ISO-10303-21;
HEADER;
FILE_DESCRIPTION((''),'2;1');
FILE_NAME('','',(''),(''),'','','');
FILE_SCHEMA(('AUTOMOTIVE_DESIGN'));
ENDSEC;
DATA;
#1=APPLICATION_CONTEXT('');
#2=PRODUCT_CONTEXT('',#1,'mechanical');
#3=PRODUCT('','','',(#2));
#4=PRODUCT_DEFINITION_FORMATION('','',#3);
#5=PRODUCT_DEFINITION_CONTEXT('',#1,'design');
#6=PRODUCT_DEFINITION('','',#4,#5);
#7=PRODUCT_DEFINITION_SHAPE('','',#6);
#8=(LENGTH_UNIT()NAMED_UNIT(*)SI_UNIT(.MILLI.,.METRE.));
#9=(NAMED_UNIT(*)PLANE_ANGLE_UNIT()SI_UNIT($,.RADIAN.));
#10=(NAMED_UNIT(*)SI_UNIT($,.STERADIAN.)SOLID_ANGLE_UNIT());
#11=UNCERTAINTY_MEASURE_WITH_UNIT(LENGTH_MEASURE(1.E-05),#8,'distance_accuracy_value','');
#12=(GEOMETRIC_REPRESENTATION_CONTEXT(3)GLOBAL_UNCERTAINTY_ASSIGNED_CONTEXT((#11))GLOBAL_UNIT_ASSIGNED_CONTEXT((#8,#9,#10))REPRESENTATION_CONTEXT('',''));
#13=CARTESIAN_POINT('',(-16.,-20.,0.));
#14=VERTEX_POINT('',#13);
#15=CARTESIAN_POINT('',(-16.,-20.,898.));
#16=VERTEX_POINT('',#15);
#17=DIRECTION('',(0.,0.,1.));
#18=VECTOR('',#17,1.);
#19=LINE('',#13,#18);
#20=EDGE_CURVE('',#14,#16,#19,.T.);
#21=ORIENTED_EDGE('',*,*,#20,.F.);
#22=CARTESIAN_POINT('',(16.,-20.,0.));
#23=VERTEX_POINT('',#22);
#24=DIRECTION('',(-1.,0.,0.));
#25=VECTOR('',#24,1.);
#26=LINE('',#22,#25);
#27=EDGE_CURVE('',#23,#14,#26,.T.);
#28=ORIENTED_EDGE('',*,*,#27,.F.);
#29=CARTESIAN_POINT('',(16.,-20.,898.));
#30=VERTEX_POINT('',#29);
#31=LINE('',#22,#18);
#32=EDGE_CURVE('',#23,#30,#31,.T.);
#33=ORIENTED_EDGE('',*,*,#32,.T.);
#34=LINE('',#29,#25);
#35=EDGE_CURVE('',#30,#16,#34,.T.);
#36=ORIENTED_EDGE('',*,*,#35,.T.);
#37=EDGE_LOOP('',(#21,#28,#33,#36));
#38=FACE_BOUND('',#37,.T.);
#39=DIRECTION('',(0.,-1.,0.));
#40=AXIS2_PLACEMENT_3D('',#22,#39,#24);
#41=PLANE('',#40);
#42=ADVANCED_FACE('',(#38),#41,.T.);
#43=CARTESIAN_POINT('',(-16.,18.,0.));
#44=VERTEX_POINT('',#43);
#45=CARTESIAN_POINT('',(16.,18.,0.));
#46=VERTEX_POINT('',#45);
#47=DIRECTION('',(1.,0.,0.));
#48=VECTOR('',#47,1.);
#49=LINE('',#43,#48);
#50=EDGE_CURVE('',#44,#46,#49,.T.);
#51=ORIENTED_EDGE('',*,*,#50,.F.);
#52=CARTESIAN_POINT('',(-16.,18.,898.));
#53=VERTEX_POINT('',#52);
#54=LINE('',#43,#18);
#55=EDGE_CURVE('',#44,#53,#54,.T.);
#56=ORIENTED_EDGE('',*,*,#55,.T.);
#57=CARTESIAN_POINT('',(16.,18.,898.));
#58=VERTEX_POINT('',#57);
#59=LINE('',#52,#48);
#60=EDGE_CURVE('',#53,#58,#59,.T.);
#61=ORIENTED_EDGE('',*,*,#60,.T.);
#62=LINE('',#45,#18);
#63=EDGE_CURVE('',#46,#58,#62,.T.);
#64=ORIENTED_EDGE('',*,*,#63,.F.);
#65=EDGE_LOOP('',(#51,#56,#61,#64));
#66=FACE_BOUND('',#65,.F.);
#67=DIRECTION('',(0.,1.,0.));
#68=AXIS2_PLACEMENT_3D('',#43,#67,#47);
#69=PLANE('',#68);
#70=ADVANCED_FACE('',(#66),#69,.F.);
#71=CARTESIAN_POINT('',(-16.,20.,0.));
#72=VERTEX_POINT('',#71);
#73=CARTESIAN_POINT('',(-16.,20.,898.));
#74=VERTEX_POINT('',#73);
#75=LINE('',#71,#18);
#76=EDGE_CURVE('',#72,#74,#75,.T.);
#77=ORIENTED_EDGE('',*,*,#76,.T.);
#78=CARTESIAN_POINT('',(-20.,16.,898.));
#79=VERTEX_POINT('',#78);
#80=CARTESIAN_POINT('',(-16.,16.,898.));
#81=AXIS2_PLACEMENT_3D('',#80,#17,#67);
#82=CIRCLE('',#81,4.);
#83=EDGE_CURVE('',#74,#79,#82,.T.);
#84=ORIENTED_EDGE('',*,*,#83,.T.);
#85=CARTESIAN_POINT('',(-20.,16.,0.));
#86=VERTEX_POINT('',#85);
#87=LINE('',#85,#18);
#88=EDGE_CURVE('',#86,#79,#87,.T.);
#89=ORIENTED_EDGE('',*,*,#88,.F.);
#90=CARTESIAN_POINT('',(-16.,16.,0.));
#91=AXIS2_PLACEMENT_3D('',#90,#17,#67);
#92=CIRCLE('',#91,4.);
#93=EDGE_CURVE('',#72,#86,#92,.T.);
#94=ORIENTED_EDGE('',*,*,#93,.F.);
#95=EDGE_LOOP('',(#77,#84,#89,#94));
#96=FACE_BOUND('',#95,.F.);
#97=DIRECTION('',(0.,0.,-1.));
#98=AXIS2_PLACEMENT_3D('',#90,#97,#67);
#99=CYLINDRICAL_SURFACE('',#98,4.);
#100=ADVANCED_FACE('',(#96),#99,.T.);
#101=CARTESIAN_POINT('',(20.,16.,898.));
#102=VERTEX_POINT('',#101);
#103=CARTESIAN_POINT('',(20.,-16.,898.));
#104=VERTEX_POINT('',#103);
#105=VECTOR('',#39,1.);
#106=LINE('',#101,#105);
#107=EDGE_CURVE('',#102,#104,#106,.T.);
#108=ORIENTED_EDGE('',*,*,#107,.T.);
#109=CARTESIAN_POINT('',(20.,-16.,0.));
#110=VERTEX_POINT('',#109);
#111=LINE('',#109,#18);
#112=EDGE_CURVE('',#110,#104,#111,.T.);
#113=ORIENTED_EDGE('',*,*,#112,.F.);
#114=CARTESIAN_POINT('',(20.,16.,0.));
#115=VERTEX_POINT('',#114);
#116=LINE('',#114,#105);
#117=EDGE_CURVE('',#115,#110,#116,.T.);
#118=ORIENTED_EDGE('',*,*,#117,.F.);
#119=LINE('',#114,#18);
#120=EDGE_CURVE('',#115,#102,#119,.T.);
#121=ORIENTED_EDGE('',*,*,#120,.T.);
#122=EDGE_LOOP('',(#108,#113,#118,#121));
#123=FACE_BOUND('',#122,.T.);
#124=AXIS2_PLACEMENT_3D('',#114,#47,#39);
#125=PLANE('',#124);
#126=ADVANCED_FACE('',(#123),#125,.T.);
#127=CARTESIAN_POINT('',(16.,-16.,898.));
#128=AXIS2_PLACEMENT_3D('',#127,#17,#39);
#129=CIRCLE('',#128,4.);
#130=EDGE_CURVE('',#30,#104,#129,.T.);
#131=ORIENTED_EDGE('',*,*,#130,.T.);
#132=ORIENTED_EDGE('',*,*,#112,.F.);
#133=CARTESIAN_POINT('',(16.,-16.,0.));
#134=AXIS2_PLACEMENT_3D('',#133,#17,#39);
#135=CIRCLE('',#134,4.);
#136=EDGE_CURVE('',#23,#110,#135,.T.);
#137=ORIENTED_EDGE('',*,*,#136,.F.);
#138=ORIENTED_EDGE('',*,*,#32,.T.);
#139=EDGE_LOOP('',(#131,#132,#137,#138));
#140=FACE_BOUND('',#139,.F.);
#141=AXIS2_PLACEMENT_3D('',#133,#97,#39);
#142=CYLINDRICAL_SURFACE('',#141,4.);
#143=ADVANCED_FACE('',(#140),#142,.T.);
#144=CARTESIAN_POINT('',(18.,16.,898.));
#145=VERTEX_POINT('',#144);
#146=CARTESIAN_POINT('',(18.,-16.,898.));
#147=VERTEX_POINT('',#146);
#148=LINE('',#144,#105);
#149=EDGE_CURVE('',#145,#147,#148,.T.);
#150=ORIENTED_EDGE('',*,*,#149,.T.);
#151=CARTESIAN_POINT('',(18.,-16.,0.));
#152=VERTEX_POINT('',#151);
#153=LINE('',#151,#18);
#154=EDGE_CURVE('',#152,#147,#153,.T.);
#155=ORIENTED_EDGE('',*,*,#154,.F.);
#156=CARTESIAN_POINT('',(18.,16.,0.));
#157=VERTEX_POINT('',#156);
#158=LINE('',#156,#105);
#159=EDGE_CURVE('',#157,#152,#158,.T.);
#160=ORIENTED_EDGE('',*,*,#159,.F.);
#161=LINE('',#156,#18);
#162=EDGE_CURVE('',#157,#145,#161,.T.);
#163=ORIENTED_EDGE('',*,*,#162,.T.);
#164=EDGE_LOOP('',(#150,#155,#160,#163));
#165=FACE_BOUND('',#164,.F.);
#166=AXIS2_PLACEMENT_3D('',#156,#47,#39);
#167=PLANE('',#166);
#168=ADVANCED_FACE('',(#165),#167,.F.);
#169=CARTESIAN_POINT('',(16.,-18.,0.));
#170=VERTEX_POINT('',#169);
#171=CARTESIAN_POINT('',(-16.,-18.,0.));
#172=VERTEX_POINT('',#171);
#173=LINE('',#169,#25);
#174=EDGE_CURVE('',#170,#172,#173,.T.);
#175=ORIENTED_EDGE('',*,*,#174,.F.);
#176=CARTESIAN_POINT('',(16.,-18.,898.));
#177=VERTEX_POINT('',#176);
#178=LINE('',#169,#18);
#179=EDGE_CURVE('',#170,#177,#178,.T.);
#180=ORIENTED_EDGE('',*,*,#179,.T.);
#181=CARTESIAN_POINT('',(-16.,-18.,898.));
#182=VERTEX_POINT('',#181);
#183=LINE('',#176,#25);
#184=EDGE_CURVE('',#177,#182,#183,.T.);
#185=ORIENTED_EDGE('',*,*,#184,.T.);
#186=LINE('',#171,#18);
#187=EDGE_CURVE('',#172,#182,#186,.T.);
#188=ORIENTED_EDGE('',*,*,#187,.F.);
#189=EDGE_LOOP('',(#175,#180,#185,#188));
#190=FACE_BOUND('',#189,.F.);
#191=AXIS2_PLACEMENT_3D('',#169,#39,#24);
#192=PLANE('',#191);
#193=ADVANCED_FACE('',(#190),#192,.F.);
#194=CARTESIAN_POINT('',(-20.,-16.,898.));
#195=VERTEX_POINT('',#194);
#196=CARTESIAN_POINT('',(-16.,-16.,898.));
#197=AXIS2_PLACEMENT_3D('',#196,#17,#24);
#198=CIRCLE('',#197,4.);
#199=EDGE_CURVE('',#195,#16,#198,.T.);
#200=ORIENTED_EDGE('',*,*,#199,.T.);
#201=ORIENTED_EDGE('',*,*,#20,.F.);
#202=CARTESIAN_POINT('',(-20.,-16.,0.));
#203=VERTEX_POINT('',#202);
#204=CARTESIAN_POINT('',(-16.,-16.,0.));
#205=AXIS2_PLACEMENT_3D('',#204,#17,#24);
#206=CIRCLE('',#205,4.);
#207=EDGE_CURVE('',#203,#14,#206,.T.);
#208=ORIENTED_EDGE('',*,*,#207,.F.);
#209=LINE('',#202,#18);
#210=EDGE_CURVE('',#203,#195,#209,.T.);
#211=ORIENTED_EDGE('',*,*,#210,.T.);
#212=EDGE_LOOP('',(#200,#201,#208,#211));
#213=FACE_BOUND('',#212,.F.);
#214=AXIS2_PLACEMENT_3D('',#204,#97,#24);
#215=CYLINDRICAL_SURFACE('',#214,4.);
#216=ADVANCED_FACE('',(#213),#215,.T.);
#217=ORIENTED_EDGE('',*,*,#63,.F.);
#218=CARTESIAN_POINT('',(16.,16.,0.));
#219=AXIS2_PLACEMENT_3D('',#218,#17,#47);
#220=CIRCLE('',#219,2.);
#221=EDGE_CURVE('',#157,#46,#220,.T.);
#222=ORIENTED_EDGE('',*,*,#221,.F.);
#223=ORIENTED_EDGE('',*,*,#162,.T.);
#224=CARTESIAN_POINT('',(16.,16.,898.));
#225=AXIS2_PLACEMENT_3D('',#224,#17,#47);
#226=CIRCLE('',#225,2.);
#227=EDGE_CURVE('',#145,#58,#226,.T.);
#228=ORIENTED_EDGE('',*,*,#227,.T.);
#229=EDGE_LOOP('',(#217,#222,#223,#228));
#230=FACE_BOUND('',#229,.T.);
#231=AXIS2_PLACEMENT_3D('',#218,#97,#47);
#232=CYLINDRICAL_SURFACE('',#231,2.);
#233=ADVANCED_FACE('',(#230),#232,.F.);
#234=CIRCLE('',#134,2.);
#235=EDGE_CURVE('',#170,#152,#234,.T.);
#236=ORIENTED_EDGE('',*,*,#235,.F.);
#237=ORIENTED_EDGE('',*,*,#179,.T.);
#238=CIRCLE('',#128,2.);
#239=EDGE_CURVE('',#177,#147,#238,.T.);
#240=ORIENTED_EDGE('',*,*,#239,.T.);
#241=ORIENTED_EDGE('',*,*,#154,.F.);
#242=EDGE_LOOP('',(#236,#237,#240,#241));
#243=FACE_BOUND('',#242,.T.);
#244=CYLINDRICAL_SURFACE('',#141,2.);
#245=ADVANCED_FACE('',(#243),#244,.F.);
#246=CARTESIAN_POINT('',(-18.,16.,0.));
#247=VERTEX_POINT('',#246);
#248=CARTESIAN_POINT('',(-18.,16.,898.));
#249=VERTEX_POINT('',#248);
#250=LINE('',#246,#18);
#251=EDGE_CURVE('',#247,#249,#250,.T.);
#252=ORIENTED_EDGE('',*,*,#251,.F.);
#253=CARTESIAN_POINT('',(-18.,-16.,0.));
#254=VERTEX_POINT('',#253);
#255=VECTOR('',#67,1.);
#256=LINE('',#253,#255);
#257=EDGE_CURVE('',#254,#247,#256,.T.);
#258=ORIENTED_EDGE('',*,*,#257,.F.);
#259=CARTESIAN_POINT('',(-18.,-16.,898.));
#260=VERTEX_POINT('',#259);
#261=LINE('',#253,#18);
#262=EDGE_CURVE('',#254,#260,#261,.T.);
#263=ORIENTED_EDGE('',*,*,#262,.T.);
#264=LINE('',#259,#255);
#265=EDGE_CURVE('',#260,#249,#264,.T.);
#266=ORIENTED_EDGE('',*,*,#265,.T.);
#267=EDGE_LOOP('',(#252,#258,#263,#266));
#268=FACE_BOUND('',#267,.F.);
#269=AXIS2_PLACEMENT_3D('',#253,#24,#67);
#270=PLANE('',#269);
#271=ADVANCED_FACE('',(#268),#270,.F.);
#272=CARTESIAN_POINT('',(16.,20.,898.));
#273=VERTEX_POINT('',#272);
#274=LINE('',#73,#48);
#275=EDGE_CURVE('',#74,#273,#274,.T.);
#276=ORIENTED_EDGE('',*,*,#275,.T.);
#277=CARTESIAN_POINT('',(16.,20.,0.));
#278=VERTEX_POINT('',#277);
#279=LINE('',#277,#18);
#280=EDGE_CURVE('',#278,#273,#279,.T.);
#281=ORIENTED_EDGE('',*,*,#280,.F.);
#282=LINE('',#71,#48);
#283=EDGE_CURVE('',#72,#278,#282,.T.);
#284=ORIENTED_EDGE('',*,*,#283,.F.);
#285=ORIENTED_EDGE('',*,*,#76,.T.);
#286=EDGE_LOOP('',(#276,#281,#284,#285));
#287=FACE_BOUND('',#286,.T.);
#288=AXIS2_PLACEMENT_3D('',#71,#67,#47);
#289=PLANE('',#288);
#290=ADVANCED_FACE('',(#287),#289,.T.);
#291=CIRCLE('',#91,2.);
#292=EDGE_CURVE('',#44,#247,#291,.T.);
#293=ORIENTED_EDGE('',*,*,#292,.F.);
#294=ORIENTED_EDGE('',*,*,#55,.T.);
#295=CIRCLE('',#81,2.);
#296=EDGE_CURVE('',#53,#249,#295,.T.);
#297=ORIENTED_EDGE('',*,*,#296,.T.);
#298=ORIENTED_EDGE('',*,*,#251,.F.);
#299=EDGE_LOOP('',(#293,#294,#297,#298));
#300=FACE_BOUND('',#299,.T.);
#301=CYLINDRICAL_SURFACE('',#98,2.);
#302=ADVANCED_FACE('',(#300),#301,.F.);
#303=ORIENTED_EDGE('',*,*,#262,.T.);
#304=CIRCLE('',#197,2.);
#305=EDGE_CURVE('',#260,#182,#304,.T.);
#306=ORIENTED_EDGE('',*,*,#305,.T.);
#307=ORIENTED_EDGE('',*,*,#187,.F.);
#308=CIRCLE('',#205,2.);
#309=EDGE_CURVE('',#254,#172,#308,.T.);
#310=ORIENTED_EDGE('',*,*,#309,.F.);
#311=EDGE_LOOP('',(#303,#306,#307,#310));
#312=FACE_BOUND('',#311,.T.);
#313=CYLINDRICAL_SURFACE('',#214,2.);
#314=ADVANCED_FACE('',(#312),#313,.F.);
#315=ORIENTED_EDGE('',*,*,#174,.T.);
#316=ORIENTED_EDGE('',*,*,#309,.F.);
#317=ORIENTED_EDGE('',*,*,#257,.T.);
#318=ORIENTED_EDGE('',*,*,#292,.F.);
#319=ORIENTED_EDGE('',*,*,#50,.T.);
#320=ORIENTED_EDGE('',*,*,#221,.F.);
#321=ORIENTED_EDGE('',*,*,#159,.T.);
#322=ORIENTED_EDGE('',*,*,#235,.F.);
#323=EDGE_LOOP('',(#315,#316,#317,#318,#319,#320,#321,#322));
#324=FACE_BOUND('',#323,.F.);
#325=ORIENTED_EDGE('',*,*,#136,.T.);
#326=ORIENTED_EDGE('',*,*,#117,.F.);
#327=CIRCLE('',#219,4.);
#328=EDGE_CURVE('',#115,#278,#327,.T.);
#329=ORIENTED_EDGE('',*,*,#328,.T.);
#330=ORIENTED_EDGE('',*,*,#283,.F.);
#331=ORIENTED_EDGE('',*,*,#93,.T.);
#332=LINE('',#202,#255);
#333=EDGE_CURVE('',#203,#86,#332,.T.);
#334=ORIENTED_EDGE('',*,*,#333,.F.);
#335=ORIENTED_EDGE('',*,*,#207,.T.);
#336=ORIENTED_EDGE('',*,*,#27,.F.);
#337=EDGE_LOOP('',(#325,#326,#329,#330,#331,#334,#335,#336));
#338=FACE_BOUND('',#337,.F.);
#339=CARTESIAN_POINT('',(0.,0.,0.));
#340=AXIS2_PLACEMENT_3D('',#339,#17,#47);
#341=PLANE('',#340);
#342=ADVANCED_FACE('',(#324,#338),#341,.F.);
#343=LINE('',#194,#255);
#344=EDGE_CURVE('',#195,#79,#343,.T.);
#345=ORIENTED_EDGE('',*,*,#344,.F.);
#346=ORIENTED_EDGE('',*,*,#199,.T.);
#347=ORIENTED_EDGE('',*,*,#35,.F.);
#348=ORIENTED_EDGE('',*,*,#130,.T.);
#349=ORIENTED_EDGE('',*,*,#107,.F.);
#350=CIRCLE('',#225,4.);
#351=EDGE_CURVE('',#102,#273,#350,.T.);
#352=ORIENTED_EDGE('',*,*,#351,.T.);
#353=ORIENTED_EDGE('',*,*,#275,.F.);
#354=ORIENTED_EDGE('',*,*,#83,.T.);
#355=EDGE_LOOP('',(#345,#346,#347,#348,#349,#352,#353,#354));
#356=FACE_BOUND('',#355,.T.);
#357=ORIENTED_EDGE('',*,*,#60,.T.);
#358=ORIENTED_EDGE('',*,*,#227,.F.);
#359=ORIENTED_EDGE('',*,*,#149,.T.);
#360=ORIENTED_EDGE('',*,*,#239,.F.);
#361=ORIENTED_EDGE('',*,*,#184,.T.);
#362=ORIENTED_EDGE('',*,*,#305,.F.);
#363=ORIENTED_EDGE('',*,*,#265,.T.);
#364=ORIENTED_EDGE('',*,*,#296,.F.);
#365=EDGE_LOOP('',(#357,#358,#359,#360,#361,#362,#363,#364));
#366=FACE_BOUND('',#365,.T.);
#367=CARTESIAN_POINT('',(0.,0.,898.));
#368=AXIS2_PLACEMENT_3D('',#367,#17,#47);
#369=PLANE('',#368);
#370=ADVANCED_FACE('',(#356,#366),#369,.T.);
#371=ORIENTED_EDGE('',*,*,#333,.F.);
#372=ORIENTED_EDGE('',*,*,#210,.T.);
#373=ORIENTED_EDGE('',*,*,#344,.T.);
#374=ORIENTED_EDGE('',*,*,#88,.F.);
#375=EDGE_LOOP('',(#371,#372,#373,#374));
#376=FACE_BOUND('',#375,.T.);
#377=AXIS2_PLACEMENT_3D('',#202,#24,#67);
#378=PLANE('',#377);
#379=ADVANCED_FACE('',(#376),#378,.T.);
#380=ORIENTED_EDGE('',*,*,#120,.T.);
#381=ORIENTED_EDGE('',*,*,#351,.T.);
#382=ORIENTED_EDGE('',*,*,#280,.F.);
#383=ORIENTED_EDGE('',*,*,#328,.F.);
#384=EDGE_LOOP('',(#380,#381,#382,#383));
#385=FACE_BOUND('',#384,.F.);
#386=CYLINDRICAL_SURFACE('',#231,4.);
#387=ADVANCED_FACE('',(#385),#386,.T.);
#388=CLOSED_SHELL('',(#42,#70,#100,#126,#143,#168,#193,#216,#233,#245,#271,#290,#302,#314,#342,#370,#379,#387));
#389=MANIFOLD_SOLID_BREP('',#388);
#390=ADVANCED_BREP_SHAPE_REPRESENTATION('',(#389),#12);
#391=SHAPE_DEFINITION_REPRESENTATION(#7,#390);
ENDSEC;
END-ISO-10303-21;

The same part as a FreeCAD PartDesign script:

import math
import FreeCAD as App
import Part
import Sketcher

V = App.Vector

doc = App.newDocument("Part")
body = doc.addObject("PartDesign::Body", "Body")

sketch1 = body.newObject("Sketcher::SketchObject", "Sketch")
sketch1.AttachmentSupport = (doc.getObject("XY_Plane"), [""])
sketch1.MapMode = "FlatFace"
sketch1.addGeometry([
    Part.LineSegment(V(-20, 16, 0), V(-20, -16, 0)),
    Part.ArcOfCircle(Part.Circle(V(-16, -16, 0), V(0, 0, 1), 4), math.radians(180), math.radians(270)),
    Part.LineSegment(V(-16, -20, 0), V(16, -20, 0)),
    Part.ArcOfCircle(Part.Circle(V(16, -16, 0), V(0, 0, 1), 4), math.radians(-90), math.radians(0)),
    Part.LineSegment(V(20, -16, 0), V(20, 16, 0)),
    Part.ArcOfCircle(Part.Circle(V(16, 16, 0), V(0, 0, 1), 4), math.radians(0), math.radians(90)),
    Part.LineSegment(V(16, 20, 0), V(-16, 20, 0)),
    Part.ArcOfCircle(Part.Circle(V(-16, 16, 0), V(0, 0, 1), 4), math.radians(90), math.radians(180)),
    Part.ArcOfCircle(Part.Circle(V(-16, 16, 0), V(0, 0, 1), 2), math.radians(90), math.radians(180)),
    Part.LineSegment(V(-16, 18, 0), V(16, 18, 0)),
    Part.ArcOfCircle(Part.Circle(V(16, 16, 0), V(0, 0, 1), 2), math.radians(0), math.radians(90)),
    Part.LineSegment(V(18, 16, 0), V(18, -16, 0)),
    Part.ArcOfCircle(Part.Circle(V(16, -16, 0), V(0, 0, 1), 2), math.radians(-90), math.radians(0)),
    Part.LineSegment(V(16, -18, 0), V(-16, -18, 0)),
    Part.ArcOfCircle(Part.Circle(V(-16, -16, 0), V(0, 0, 1), 2), math.radians(180), math.radians(270)),
    Part.LineSegment(V(-18, -16, 0), V(-18, 16, 0)),
], False)
sketch1.addConstraint([
    Sketcher.Constraint("Tangent", 0, 2, 1, 1),
    Sketcher.Constraint("Tangent", 1, 2, 2, 1),
    Sketcher.Constraint("Tangent", 2, 2, 3, 1),
    Sketcher.Constraint("Tangent", 3, 2, 4, 1),
    Sketcher.Constraint("Tangent", 4, 2, 5, 1),
    Sketcher.Constraint("Tangent", 5, 2, 6, 1),
    Sketcher.Constraint("Tangent", 6, 2, 7, 1),
    Sketcher.Constraint("Tangent", 7, 2, 0, 1),
    Sketcher.Constraint("Tangent", 8, 1, 9, 1),
    Sketcher.Constraint("Tangent", 9, 2, 10, 2),
    Sketcher.Constraint("Tangent", 10, 1, 11, 1),
    Sketcher.Constraint("Tangent", 11, 2, 12, 2),
    Sketcher.Constraint("Tangent", 12, 1, 13, 1),
    Sketcher.Constraint("Tangent", 13, 2, 14, 2),
    Sketcher.Constraint("Tangent", 14, 1, 15, 1),
    Sketcher.Constraint("Tangent", 15, 2, 8, 2),
    Sketcher.Constraint("Vertical", 0),
    Sketcher.Constraint("Horizontal", 2),
    Sketcher.Constraint("Vertical", 4),
    Sketcher.Constraint("Horizontal", 6),
    Sketcher.Constraint("Horizontal", 9),
    Sketcher.Constraint("Vertical", 11),
    Sketcher.Constraint("Horizontal", 13),
    Sketcher.Constraint("Vertical", 15),
    Sketcher.Constraint("Coincident", 8, 3, 7, 3),
    Sketcher.Constraint("Coincident", 10, 3, 5, 3),
    Sketcher.Constraint("Coincident", 12, 3, 3, 3),
    Sketcher.Constraint("Equal", 1, 3),
    Sketcher.Constraint("Equal", 3, 5),
    Sketcher.Constraint("Equal", 5, 7),
    Sketcher.Constraint("Equal", 12, 14),
    Sketcher.Constraint("Symmetric", 1, 3, 5, 3, -1, 1),
    Sketcher.Constraint("Equal", 13, 0),
    Sketcher.Constraint("Radius", 1, 4.0),
    Sketcher.Constraint("Radius", 8, 2.0),
    Sketcher.Constraint("DistanceX", 0, 2, -1, 1, 20.0),
])
pad1 = body.newObject("PartDesign::Pad", "Pad")
pad1.Profile = sketch1
pad1.Length = 898

doc.recompute()
